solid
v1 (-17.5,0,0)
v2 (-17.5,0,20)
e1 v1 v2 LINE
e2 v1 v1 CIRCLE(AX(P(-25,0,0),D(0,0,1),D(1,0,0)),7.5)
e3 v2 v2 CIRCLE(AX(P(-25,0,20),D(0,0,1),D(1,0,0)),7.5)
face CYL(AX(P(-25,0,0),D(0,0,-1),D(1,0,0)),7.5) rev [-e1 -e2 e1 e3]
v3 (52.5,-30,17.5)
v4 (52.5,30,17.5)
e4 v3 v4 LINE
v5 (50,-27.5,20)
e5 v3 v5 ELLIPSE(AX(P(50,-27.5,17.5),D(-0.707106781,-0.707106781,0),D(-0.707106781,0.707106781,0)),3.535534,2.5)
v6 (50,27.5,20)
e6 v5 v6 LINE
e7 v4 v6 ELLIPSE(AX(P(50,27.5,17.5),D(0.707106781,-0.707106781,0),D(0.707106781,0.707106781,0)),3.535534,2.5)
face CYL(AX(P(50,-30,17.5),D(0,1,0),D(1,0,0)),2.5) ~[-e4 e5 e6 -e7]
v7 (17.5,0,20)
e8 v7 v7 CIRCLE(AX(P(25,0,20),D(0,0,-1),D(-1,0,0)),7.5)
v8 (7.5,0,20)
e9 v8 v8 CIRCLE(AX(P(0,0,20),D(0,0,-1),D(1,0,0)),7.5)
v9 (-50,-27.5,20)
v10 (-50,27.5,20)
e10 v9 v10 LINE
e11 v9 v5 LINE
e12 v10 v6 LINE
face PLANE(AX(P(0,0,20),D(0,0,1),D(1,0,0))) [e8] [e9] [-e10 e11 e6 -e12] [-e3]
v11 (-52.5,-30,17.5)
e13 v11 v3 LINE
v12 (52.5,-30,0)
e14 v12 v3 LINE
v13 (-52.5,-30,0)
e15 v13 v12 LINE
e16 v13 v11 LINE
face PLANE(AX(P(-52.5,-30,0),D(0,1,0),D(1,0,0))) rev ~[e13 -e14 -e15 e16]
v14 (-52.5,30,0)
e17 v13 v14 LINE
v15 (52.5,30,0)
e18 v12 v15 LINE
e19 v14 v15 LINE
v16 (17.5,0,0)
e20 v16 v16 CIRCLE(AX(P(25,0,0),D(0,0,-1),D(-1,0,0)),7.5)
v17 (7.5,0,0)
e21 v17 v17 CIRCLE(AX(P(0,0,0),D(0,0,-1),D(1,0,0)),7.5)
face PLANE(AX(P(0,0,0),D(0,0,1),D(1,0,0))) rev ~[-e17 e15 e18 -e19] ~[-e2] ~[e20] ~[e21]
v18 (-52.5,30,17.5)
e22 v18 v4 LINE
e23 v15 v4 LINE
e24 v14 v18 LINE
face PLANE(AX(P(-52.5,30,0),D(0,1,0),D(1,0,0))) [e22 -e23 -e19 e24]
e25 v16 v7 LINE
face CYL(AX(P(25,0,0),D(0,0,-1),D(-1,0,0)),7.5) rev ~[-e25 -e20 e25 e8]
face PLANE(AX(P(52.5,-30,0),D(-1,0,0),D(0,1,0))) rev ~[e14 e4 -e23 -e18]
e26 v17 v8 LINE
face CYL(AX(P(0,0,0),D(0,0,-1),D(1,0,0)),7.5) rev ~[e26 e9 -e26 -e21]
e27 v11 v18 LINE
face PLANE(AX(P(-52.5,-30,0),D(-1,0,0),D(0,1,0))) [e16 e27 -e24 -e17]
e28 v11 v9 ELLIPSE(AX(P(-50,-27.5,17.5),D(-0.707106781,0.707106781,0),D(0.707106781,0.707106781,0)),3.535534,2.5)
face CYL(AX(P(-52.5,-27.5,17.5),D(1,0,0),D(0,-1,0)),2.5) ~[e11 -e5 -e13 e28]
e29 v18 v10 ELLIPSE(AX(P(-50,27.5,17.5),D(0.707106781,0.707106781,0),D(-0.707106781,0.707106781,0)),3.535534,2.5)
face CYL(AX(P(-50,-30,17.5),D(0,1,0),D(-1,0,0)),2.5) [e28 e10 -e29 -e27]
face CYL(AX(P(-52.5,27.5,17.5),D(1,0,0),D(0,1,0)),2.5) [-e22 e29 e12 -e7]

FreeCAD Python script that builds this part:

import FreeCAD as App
import Part
import Sketcher
from FreeCAD import Vector
Q = App.Units.Quantity


def edges_at(feature, points):
    """Names of the edges that pass closest to the given points."""
    edges = feature.Shape.Edges
    near = lambda p: min(range(len(edges)), key=lambda i: edges[i].distToShape(Part.Vertex(*p))[0])
    return sorted({f"Edge{near(p) + 1}" for p in points})

doc = App.newDocument("Part")
body = doc.addObject("PartDesign::Body", "Body")

# Sketch on XY plane
sketch1 = body.newObject("Sketcher::SketchObject", "Sketch")
sketch1.AttachmentSupport = (doc.getObject("XY_Plane"), [""])
sketch1.MapMode = "FlatFace"
sketch1.addGeometry(Part.LineSegment(Vector(-52, 30, 0), Vector(-52, -30, 0)), False)
sketch1.addGeometry(Part.LineSegment(Vector(-52, -30, 0), Vector(52, -30, 0)), False)
sketch1.addGeometry(Part.LineSegment(Vector(52, -30, 0), Vector(52, 30, 0)), False)
sketch1.addGeometry(Part.LineSegment(Vector(52, 30, 0), Vector(-52, 30, 0)), False)
sketch1.addGeometry(Part.Circle(Vector(-25, 0, 0), Vector(0, 0, 1), 8), False)
sketch1.addGeometry(Part.Circle(Vector(0, 0, 0), Vector(0, 0, 1), 8), False)
sketch1.addGeometry(Part.Circle(Vector(25, 0, 0), Vector(0, 0, 1), 8), False)
sketch1.addConstraint(Sketcher.Constraint("Coincident", 0, 2, 1, 1))
sketch1.addConstraint(Sketcher.Constraint("Coincident", 1, 2, 2, 1))
sketch1.addConstraint(Sketcher.Constraint("Coincident", 2, 2, 3, 1))
sketch1.addConstraint(Sketcher.Constraint("Coincident", 3, 2, 0, 1))
sketch1.addConstraint(Sketcher.Constraint("Vertical", 0))
sketch1.addConstraint(Sketcher.Constraint("Horizontal", 1))
sketch1.addConstraint(Sketcher.Constraint("Vertical", 2))
sketch1.addConstraint(Sketcher.Constraint("Horizontal", 3))
sketch1.addConstraint(Sketcher.Constraint("Coincident", 5, 3, -1, 1))
sketch1.addConstraint(Sketcher.Constraint("Equal", 4, 5))
sketch1.addConstraint(Sketcher.Constraint("Equal", 5, 6))
sketch1.addConstraint(Sketcher.Constraint("Symmetric", 4, 3, 6, 3, -1, 1))
sketch1.addConstraint(Sketcher.Constraint("Symmetric", 0, 2, 2, 2, -1, 1))
sketch1.addConstraint(Sketcher.Constraint("PointOnObject", 4, 3, -1))
sketch1.addConstraint(Sketcher.Constraint("Diameter", 4, Q("15 mm")))
sketch1.addConstraint(Sketcher.Constraint("DistanceX", 1, 1, 1, 2, Q("105 mm")))
sketch1.addConstraint(Sketcher.Constraint("DistanceY", 0, 2, 0, 1, Q("60 mm")))
sketch1.addConstraint(Sketcher.Constraint("DistanceX", 4, 3, -1, 1, Q("25 mm")))
pad1 = body.newObject("PartDesign::Pad", "Pad")
pad1.Profile = sketch1
pad1.Length = 20
doc.recompute()

fillet = body.newObject("PartDesign::Fillet", "Fillet")
fillet.Base = (pad1, edges_at(pad1, [
    (-52.5, 0, 20),
    (0, 30, 20),
    (52.5, 0, 20),
    (0, -30, 20),
]))
fillet.Radius = 2.5

doc.recompute()
